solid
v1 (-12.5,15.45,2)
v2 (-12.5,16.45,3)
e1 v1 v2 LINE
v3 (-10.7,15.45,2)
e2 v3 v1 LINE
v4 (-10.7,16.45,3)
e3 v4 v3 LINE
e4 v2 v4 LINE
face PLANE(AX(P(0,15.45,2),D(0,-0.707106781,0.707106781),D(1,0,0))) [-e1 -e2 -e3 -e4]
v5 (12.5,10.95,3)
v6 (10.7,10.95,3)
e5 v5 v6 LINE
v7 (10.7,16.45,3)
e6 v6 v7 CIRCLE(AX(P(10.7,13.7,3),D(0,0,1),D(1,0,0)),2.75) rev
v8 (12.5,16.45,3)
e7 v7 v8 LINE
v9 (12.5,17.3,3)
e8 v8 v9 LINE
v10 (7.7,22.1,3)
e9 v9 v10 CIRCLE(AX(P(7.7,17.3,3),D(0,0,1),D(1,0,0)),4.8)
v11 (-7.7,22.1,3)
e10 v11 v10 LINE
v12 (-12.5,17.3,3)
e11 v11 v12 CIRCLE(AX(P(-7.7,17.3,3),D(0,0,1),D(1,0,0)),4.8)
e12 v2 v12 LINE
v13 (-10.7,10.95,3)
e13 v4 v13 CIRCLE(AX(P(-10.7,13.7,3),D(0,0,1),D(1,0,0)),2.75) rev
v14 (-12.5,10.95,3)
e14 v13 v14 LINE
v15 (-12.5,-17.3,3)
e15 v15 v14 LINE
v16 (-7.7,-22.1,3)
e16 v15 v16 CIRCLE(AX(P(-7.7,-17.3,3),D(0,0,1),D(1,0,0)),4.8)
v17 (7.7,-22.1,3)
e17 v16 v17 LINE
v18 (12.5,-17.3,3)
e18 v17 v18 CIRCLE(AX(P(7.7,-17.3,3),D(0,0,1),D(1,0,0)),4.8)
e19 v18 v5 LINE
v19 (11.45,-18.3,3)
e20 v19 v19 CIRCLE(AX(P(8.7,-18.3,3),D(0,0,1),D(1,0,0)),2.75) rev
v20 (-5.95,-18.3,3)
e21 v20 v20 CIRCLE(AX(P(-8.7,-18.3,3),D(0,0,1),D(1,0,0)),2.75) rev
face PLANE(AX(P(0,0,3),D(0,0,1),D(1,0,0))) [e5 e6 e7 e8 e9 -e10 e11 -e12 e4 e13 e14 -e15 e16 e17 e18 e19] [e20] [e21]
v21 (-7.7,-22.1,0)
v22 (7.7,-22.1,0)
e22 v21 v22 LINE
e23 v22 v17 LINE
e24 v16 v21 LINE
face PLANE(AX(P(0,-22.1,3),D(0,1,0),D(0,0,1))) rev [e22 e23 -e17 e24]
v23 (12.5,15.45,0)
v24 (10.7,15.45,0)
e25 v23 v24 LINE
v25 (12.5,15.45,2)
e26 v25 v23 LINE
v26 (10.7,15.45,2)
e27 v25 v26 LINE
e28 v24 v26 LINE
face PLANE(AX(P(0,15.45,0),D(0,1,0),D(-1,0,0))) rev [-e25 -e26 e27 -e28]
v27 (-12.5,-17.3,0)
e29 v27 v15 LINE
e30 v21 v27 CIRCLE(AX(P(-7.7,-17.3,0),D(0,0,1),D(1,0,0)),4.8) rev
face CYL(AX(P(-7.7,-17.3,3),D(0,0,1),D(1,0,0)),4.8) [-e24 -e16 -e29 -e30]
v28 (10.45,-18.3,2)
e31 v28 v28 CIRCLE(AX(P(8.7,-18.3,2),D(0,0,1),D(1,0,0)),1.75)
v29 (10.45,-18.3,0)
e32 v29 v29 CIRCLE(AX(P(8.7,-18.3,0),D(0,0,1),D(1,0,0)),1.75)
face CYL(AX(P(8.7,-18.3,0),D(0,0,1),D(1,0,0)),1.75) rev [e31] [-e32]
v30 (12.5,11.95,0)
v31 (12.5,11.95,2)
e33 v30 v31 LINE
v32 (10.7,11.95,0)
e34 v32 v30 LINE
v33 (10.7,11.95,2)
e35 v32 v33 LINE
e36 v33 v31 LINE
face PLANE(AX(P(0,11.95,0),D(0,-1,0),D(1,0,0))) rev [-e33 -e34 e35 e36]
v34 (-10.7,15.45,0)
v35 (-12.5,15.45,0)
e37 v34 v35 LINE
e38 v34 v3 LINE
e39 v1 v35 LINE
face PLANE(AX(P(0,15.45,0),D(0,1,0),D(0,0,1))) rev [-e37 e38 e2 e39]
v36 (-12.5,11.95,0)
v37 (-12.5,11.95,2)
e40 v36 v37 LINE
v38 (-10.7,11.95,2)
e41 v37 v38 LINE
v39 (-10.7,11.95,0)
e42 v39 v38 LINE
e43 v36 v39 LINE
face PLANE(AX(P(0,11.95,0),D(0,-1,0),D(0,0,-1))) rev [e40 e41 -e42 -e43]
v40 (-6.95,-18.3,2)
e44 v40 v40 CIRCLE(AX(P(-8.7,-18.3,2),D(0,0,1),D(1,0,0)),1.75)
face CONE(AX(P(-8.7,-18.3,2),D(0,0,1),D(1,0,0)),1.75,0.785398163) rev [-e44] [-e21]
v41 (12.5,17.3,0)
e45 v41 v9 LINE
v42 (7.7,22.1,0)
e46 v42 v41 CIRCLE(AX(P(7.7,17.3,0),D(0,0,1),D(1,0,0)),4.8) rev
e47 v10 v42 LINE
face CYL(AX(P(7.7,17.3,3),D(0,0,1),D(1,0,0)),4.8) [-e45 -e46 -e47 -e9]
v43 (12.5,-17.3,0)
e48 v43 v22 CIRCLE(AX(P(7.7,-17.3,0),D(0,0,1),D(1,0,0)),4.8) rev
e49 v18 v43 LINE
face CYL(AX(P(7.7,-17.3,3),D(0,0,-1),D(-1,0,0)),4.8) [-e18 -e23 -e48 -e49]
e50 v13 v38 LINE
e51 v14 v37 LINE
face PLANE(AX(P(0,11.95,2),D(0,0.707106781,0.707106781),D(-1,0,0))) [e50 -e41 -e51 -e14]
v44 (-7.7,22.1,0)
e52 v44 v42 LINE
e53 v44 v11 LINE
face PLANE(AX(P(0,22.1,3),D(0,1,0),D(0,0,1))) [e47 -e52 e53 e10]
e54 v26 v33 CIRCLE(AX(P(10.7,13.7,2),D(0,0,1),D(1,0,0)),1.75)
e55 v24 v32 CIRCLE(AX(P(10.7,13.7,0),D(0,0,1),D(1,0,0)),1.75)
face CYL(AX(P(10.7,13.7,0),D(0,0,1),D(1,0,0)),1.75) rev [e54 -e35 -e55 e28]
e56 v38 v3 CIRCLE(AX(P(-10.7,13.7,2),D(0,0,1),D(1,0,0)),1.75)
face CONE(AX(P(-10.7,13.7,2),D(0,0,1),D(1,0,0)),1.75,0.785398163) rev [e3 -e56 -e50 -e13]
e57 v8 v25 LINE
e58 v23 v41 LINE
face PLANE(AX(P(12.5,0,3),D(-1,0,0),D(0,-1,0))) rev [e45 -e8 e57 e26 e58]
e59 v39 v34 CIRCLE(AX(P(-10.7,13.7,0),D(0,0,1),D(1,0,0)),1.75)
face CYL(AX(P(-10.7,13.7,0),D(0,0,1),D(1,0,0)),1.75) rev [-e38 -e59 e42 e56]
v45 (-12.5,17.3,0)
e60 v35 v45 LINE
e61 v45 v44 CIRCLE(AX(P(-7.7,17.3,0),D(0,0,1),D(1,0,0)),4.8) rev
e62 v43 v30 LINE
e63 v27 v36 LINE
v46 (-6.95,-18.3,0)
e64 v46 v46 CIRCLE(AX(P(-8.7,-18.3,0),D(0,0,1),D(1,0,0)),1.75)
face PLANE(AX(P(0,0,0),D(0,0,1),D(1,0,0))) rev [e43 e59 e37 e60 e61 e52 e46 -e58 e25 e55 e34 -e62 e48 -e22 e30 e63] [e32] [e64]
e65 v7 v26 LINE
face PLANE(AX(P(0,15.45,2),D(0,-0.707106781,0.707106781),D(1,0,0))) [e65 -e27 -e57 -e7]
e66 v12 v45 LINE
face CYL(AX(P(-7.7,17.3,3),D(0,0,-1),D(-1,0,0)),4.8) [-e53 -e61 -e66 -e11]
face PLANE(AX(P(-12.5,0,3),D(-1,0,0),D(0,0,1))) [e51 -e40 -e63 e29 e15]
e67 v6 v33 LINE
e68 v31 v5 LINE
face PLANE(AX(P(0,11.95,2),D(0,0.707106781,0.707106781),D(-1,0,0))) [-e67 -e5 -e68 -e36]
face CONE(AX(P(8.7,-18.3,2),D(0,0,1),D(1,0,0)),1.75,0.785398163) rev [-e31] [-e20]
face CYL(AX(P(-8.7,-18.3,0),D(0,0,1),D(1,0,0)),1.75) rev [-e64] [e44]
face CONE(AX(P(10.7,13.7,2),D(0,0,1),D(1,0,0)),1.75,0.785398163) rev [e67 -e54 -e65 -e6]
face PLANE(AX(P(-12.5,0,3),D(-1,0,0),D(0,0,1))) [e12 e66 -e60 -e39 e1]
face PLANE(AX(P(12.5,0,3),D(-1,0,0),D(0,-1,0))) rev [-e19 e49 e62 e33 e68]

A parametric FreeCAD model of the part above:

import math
import FreeCAD as App
import Part
import Sketcher
from FreeCAD import Vector


def edges_at(feature, points):
    """Names of the edges that pass closest to the given points."""
    edges = feature.Shape.Edges
    near = lambda p: min(range(len(edges)), key=lambda i: edges[i].distToShape(Part.Vertex(*p))[0])
    return sorted({f"Edge{near(p) + 1}" for p in points})


def add_polygon(sketch, points):
    """Adds a closed chain of lines whose ends are joined by coincident constraints."""
    first, n = sketch.GeometryCount, len(points)
    for a, b in zip(points, points[1:] + points[:1]):
        sketch.addGeometry(Part.LineSegment(App.Vector(*a, 0), App.Vector(*b, 0)), False)
    for i in range(n):
        sketch.addConstraint(Sketcher.Constraint("Coincident", first + i, 2, first + (i + 1) % n, 1))

doc = App.newDocument("Part")
body = doc.addObject("PartDesign::Body", "Body")

# Sketch on XY plane
sketch1 = body.newObject("Sketcher::SketchObject", "Sketch")
sketch1.AttachmentSupport = (doc.getObject("XY_Plane"), [""])
sketch1.MapMode = "FlatFace"
add_polygon(sketch1, [(-12, 22), (-12, -22), (12, -22), (12, 22)])  # lines 0-3
sketch1.addConstraint([
    Sketcher.Constraint("Vertical", 0),
    Sketcher.Constraint("Horizontal", 1),
    Sketcher.Constraint("Vertical", 2),
    Sketcher.Constraint("Horizontal", 3),
    Sketcher.Constraint("Symmetric", 0, 2, 2, 2, -1, 1),
    Sketcher.Constraint("DistanceX", 1, 1, 1, 2, 25.0),
    Sketcher.Constraint("DistanceY", 0, 2, 0, 1, 44.2),
])
pad1 = body.newObject("PartDesign::Pad", "Pad")
pad1.Profile = sketch1
pad1.Length = 3
doc.recompute()

fillet = body.newObject("PartDesign::Fillet", "Fillet")
fillet.Base = (pad1, edges_at(pad1, [
    (-12.5, 22.1, 1.5),
    (12.5, 22.1, 1.5),
    (12.5, -22.1, 1.5),
    (-12.5, -22.1, 1.5),
]))
fillet.Radius = 4.8

# Sketch on XY plane
sketch2 = body.newObject("Sketcher::SketchObject", "Sketch001")
sketch2.AttachmentSupport = (doc.getObject("XY_Plane"), [""])
sketch2.MapMode = "FlatFace"
sketch2.AttachmentOffset = App.Placement(Vector(0, 0, 3), App.Rotation())
sketch2.addGeometry([
    Part.Circle(Vector(-8.7, -18.3, 0), Vector(0, 0, 1), 1.8),  # 0
    Part.Circle(Vector(8.7, -18.3, 0), Vector(0, 0, 1), 1.8),  # 1
    Part.LineSegment(Vector(12.5, 11.9, 0), Vector(12.5, 15.4, 0)),  # 2
    Part.LineSegment(Vector(12.5, 15.4, 0), Vector(10.7, 15.4, 0)),  # 3
    Part.ArcOfCircle(Part.Circle(Vector(10.7, 13.7, 0), Vector(0, 0, 1), 1.8), math.radians(90), math.radians(270)),  # 4
    Part.LineSegment(Vector(10.7, 11.9, 0), Vector(12.5, 11.9, 0)),  # 5
    Part.LineSegment(Vector(-10.7, 15.4, 0), Vector(-12.5, 15.4, 0)),  # 6
    Part.LineSegment(Vector(-12.5, 15.4, 0), Vector(-12.5, 11.9, 0)),  # 7
    Part.LineSegment(Vector(-12.5, 11.9, 0), Vector(-10.7, 11.9, 0)),  # 8
    Part.ArcOfCircle(Part.Circle(Vector(-10.7, 13.7, 0), Vector(0, 0, 1), 1.8), math.radians(-90), math.radians(90)),  # 9
], False)
sketch2.addConstraint([
    Sketcher.Constraint("Coincident", 2, 2, 3, 1),
    Sketcher.Constraint("Tangent", 3, 2, 4, 1),
    Sketcher.Constraint("Tangent", 4, 2, 5, 1),
    Sketcher.Constraint("Coincident", 5, 2, 2, 1),
    Sketcher.Constraint("Coincident", 6, 2, 7, 1),
    Sketcher.Constraint("Coincident", 7, 2, 8, 1),
    Sketcher.Constraint("Tangent", 8, 2, 9, 1),
    Sketcher.Constraint("Tangent", 9, 2, 6, 1),
    Sketcher.Constraint("Vertical", 2),
    Sketcher.Constraint("Horizontal", 3),
    Sketcher.Constraint("Horizontal", 5),
    Sketcher.Constraint("Horizontal", 6),
    Sketcher.Constraint("Vertical", 7),
    Sketcher.Constraint("Horizontal", 8),
    Sketcher.Constraint("Equal", 0, 1),
    Sketcher.Constraint("Equal", 1, 4),
    Sketcher.Constraint("Equal", 4, 9),
    Sketcher.Constraint("Symmetric", 0, 3, 1, 3, -2),
    Sketcher.Constraint("Symmetric", 4, 3, 9, 3, -2),
    Sketcher.Constraint("Equal", 5, 6),
    Sketcher.Constraint("Diameter", 0, 3.5),
    Sketcher.Constraint("DistanceX", 3, 2, 3, 1, 1.8),
    Sketcher.Constraint("DistanceX", 1, 3, 4, 3, 2.0),
    Sketcher.Constraint("DistanceY", 1, 3, 4, 3, 32.0),
    Sketcher.Constraint("DistanceX", 6, 2, 2, 2, 25.0),
    Sketcher.Constraint("DistanceY", 0, 3, -1, 1, 18.3),
])
pocket1 = body.newObject("PartDesign::Pocket", "Pocket")
pocket1.Profile = sketch2
pocket1.Length = 3
doc.recompute()

chamfer = body.newObject("PartDesign::Chamfer", "Chamfer")
chamfer.Base = (pocket1, edges_at(pocket1, [
    (-11.6, 11.95, 3),
    (-8.95, 13.7, 3),
    (-11.6, 15.45, 3),
    (11.6, 11.95, 3),
    (11.6, 15.45, 3),
    (8.95, 13.7, 3),
    (6.95, -18.3, 3),
    (-10.45, -18.3, 3),
]))
chamfer.Size = 1

doc.recompute()
